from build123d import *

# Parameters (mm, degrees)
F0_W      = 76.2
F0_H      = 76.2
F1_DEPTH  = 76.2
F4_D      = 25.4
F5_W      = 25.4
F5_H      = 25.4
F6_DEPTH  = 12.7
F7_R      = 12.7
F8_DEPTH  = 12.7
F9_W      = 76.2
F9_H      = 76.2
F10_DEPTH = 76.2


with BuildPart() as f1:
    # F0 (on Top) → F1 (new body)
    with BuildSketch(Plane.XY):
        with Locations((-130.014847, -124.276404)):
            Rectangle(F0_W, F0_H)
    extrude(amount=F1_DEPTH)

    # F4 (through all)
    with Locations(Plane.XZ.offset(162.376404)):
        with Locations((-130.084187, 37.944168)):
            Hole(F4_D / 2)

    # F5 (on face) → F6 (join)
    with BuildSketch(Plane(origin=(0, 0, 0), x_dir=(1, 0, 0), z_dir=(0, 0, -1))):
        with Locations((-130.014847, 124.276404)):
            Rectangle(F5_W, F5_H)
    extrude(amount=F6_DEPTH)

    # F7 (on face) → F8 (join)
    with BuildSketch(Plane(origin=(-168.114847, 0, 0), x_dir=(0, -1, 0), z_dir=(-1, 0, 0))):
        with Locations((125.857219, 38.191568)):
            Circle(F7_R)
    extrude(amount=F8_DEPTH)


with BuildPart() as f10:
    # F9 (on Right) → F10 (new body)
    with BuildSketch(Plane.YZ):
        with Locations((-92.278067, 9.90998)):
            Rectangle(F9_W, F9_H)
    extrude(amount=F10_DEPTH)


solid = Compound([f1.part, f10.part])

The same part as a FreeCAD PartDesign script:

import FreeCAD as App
import Part
import Sketcher

V = App.Vector
Q = App.Units.Quantity


def add_polygon(sketch, points):
    """Adds a closed chain of lines whose ends are joined by coincident constraints."""
    first, n = sketch.GeometryCount, len(points)
    for a, b in zip(points, points[1:] + points[:1]):
        sketch.addGeometry(Part.LineSegment(App.Vector(*a, 0), App.Vector(*b, 0)), False)
    for i in range(n):
        sketch.addConstraint(Sketcher.Constraint("Coincident", first + i, 2, first + (i + 1) % n, 1))

doc = App.newDocument("Part")
body = doc.addObject("PartDesign::Body", "Body")

sketch1 = body.newObject("Sketcher::SketchObject", "Sketch")
sketch1.AttachmentSupport = (doc.getObject("XY_Plane"), [""])
sketch1.MapMode = "FlatFace"
add_polygon(sketch1, [(-168, -86), (-168, -162), (-92, -162), (-92, -86)])
sketch1.addConstraint([
    Sketcher.Constraint("Vertical", 0),
    Sketcher.Constraint("Horizontal", 1),
    Sketcher.Constraint("Vertical", 2),
    Sketcher.Constraint("Horizontal", 3),
    Sketcher.Constraint("Equal", 3, 0),
    Sketcher.Constraint("DistanceX", 1, 1, 1, 2, Q("3 in")),
    Sketcher.Constraint("DistanceX", 0, 2, -1, 1, Q("168.114847 mm")),
    Sketcher.Constraint("DistanceY", 0, 2, -1, 1, Q("162.376404 mm")),
])
pad1 = body.newObject("PartDesign::Pad", "Pad")
pad1.Profile = sketch1
pad1.Length = Q("3 in")

sketch2 = body.newObject("Sketcher::SketchObject", "Sketch001")
sketch2.AttachmentSupport = (doc.getObject("XZ_Plane"), [""])
sketch2.MapMode = "FlatFace"
sketch2.AttachmentOffset = App.Placement(V(0, 0, 162.376404), App.Rotation())
sketch2.addGeometry(Part.Circle(V(-130, 38, 0), V(0, 0, 1), 13), False)
sketch2.addConstraint([
    Sketcher.Constraint("Diameter", 0, Q("1 in")),
    Sketcher.Constraint("DistanceX", 0, 3, -1, 1, Q("130.084187 mm")),
    Sketcher.Constraint("DistanceY", -1, 1, 0, 3, Q("37.944168 mm")),
])
doc.recompute()
hole = body.newObject("PartDesign::Hole", "Hole")
hole.Profile = sketch2
hole.ThreadType = "None"
hole.Diameter = Q("1 in")
hole.DepthType = "ThroughAll"

sketch3 = body.newObject("Sketcher::SketchObject", "Sketch002")
sketch3.AttachmentSupport = (doc.getObject("XY_Plane"), [""])
sketch3.MapMode = "FlatFace"
add_polygon(sketch3, [(-143, -137), (-143, -112), (-117, -112), (-117, -137)])
sketch3.addConstraint([
    Sketcher.Constraint("Vertical", 0),
    Sketcher.Constraint("Horizontal", 1),
    Sketcher.Constraint("Vertical", 2),
    Sketcher.Constraint("Horizontal", 3),
    Sketcher.Constraint("Equal", 3, 0),
    Sketcher.Constraint("DistanceX", 1, 1, 1, 2, Q("1 in")),
    Sketcher.Constraint("DistanceX", 0, 2, -1, 1, Q("142.714847 mm")),
    Sketcher.Constraint("DistanceY", 0, 2, -1, 1, Q("111.576404 mm")),
])
pad2 = body.newObject("PartDesign::Pad", "Pad001")
pad2.Profile = sketch3
pad2.Length = Q("0.5 in")
pad2.Reversed = True

sketch4 = body.newObject("Sketcher::SketchObject", "Sketch003")
sketch4.AttachmentSupport = (doc.getObject("YZ_Plane"), [""])
sketch4.MapMode = "FlatFace"
sketch4.AttachmentOffset = App.Placement(V(0, 0, -168.114847), App.Rotation())
sketch4.addGeometry(Part.Circle(V(-126, 38, 0), V(0, 0, 1), 13), False)
sketch4.addConstraint([
    Sketcher.Constraint("Diameter", 0, Q("1 in")),
    Sketcher.Constraint("DistanceX", 0, 3, -1, 1, Q("125.857219 mm")),
    Sketcher.Constraint("DistanceY", -1, 1, 0, 3, Q("38.191568 mm")),
])
pad3 = body.newObject("PartDesign::Pad", "Pad002")
pad3.Profile = sketch4
pad3.Length = Q("0.5 in")
pad3.Reversed = True
body2 = doc.addObject("PartDesign::Body", "Body001")

sketch5 = body2.newObject("Sketcher::SketchObject", "Sketch004")
sketch5.AttachmentSupport = (doc.getObject("YZ_Plane001"), [""])
sketch5.MapMode = "FlatFace"
add_polygon(sketch5, [(-130, 48), (-130, -28), (-54, -28), (-54, 48)])
sketch5.addConstraint([
    Sketcher.Constraint("Vertical", 0),
    Sketcher.Constraint("Horizontal", 1),
    Sketcher.Constraint("Vertical", 2),
    Sketcher.Constraint("Horizontal", 3),
    Sketcher.Constraint("Equal", 3, 0),
    Sketcher.Constraint("DistanceX", 1, 1, 1, 2, Q("3 in")),
    Sketcher.Constraint("DistanceY", 0, 2, -1, 1, Q("28.19002 mm")),
    Sketcher.Constraint("DistanceX", 0, 2, -1, 1, Q("130.378067 mm")),
])
pad4 = body2.newObject("PartDesign::Pad", "Pad003")
pad4.Profile = sketch5
pad4.Length = Q("3 in")

doc.recompute()
